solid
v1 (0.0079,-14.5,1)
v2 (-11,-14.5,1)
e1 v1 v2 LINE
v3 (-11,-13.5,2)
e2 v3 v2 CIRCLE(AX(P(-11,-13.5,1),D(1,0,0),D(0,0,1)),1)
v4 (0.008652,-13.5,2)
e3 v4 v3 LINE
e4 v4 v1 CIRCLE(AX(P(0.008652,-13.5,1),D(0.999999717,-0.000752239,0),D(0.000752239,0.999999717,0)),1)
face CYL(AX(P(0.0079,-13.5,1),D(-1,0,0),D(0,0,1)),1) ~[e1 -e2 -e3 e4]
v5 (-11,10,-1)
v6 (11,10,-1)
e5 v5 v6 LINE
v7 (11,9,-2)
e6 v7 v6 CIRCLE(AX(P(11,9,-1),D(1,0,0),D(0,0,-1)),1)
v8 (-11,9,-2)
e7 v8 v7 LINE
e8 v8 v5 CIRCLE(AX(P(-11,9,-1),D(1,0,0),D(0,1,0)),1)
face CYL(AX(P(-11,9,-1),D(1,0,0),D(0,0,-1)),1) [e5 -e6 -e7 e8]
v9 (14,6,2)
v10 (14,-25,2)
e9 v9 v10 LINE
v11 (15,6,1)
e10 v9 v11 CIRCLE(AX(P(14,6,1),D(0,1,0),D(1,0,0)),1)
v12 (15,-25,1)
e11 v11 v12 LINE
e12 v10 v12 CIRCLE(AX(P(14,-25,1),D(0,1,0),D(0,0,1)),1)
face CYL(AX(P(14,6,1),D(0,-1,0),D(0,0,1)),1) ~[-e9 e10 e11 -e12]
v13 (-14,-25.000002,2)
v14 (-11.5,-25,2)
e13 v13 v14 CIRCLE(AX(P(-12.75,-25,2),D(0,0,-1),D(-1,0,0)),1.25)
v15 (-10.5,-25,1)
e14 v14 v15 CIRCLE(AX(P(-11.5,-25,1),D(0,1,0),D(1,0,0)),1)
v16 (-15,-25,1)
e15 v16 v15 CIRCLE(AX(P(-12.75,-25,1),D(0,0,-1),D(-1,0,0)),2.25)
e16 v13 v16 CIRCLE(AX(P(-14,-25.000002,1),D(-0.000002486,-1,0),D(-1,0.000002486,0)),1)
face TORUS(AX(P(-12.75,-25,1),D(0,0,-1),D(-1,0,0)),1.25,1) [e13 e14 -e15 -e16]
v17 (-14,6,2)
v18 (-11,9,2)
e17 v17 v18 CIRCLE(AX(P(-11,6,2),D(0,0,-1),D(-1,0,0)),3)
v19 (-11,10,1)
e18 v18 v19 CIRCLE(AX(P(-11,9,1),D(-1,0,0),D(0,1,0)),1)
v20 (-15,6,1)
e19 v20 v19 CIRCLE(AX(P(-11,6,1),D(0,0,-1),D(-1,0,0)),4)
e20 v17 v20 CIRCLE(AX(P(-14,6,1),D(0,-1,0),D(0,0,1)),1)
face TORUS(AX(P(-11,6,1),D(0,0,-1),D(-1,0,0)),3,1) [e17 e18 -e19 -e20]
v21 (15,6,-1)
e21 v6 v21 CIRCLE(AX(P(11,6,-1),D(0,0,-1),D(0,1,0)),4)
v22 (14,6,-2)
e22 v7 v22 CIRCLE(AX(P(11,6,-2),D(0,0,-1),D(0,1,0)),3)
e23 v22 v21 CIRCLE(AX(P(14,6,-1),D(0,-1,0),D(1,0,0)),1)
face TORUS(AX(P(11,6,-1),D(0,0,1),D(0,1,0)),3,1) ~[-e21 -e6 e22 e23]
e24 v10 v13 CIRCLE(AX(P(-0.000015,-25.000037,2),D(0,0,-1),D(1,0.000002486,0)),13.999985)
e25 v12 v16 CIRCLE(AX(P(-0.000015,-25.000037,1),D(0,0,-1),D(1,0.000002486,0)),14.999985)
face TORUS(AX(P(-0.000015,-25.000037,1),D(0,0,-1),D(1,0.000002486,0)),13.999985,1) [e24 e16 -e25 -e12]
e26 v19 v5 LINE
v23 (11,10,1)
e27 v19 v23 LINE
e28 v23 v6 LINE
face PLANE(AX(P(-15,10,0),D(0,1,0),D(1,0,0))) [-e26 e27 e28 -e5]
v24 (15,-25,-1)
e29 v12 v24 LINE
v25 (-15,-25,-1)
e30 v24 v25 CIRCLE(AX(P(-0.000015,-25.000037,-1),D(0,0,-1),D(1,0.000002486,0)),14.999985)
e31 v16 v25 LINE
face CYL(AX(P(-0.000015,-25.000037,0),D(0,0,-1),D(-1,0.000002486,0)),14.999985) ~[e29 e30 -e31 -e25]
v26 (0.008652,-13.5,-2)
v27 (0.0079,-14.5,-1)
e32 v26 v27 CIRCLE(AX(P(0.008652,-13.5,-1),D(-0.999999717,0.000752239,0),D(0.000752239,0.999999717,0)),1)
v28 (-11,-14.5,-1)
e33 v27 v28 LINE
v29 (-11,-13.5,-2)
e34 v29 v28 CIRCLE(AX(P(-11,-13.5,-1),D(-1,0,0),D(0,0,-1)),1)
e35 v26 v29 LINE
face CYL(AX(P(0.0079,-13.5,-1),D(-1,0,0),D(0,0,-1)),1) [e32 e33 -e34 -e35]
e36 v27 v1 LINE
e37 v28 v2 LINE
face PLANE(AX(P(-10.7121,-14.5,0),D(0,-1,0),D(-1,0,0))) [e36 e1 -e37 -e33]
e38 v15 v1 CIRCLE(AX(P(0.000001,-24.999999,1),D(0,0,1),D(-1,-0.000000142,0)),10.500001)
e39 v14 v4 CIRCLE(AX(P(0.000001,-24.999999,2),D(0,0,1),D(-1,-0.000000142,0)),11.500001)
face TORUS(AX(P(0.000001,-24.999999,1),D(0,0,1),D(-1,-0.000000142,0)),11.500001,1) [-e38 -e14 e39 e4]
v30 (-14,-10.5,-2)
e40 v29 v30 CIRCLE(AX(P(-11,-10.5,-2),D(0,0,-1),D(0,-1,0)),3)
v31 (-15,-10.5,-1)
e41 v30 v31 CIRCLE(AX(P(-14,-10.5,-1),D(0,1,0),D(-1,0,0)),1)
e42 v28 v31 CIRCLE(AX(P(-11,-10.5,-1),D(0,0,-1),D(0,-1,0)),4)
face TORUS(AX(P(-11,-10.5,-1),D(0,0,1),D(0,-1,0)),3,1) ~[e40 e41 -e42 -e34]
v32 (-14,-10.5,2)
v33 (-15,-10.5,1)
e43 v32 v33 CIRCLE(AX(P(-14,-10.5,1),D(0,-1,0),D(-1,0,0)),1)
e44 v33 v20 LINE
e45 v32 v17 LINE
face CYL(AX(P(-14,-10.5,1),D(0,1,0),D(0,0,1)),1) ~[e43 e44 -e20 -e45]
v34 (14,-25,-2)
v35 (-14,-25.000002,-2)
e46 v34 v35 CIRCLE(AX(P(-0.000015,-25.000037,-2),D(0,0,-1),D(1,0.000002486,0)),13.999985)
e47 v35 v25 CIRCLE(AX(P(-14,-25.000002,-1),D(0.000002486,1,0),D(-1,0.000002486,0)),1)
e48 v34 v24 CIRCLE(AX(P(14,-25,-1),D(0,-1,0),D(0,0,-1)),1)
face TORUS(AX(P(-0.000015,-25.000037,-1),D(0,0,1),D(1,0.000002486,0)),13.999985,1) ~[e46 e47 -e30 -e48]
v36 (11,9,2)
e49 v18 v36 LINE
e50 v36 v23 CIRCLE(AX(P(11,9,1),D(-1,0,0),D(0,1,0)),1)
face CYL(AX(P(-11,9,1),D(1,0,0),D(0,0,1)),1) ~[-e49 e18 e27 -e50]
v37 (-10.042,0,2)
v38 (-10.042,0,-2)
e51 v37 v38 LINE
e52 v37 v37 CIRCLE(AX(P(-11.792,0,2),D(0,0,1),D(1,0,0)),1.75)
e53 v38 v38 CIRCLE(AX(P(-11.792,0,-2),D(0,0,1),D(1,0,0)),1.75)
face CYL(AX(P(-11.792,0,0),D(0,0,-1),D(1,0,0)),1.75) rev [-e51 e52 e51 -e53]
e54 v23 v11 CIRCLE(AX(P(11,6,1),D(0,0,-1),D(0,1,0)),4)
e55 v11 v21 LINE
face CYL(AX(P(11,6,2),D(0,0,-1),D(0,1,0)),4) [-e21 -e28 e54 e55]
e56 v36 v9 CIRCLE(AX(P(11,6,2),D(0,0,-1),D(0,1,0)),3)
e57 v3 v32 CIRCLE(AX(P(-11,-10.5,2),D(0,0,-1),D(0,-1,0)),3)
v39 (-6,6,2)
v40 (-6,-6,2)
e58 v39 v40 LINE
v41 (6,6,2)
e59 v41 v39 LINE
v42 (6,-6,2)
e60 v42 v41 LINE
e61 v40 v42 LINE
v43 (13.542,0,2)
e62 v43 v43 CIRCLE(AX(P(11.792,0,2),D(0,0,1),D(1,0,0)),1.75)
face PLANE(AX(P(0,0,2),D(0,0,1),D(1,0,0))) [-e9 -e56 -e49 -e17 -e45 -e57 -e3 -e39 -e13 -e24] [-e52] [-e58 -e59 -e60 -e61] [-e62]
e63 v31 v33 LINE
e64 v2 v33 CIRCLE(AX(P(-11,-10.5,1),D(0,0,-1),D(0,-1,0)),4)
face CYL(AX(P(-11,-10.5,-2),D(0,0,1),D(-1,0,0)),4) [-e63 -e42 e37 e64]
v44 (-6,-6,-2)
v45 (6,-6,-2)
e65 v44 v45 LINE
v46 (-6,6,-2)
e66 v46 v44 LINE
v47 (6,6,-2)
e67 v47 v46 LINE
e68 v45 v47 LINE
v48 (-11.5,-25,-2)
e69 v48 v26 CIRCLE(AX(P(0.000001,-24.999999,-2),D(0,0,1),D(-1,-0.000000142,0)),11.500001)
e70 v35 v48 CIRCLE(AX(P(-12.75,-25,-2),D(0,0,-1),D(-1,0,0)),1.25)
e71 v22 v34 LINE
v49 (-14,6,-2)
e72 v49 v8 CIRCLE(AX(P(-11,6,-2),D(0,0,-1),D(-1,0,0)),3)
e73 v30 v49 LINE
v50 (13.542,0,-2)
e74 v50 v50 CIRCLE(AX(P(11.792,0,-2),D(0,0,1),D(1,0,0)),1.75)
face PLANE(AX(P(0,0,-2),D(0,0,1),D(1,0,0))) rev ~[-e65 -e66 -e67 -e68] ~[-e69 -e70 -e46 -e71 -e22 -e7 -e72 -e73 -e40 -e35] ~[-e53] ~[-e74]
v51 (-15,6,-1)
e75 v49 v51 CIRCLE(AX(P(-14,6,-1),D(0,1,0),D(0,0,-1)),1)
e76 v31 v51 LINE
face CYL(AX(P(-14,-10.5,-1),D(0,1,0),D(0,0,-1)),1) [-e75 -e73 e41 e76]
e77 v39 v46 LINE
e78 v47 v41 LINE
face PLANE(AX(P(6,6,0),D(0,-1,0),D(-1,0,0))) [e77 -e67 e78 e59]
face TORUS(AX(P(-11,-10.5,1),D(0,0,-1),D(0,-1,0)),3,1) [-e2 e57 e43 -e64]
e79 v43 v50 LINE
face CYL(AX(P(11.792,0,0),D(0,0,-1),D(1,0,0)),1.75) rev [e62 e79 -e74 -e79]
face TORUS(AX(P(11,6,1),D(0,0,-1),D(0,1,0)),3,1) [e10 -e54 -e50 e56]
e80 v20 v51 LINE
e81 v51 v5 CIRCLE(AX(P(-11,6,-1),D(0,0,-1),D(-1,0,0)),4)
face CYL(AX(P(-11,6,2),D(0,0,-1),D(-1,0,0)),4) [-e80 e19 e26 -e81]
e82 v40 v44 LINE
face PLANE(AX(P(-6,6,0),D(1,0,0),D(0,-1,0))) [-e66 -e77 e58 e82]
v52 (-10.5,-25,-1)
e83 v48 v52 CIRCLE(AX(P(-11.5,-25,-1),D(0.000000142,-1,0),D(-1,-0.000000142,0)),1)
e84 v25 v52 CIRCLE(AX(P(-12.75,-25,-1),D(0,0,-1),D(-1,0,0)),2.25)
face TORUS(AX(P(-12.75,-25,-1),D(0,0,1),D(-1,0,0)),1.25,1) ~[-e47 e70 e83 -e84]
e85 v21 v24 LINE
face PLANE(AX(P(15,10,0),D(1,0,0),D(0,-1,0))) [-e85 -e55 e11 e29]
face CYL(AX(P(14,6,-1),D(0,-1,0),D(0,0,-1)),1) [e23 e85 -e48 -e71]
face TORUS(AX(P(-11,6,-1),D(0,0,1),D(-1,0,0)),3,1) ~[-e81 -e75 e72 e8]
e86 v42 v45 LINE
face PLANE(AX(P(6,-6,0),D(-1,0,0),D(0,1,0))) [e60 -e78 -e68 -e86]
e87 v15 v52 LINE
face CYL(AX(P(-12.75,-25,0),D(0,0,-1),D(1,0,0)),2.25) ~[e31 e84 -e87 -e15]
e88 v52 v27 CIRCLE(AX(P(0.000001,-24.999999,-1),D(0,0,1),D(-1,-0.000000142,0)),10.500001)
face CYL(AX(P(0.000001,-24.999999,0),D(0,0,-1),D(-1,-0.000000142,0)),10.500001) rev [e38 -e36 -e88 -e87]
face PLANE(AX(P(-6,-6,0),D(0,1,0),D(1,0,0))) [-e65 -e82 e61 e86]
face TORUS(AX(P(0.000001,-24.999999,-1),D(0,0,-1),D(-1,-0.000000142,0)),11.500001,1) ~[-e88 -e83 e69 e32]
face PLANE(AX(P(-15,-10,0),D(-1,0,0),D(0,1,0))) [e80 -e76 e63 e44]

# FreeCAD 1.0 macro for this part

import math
import FreeCAD as App
import Part
import Sketcher
from FreeCAD import Vector


def edges_at(feature, points):
    """Names of the edges that pass closest to the given points."""
    edges = feature.Shape.Edges
    near = lambda p: min(range(len(edges)), key=lambda i: edges[i].distToShape(Part.Vertex(*p))[0])
    return sorted({f"Edge{near(p) + 1}" for p in points})

doc = App.newDocument("Part")
params = doc.addObject("Spreadsheet::Sheet", "Params")
for row, (alias, value) in enumerate([
    ("sketch1_radius", "15 mm"),
    ("sketch1_diameter", "3.5 mm"),
    ("sketch1_width", "30 mm"),
    ("sketch1_width2", "12 mm"),
    ("sketch1_height", "35 mm"),
    ("pad1_length", "4 mm"),
    ("sketch2_radius", "15 mm"),
    ("sketch2_radius2", "10.5 mm"),
    ("sketch2_width", "10.72 mm"),
    ("pad2_length", "4 mm"),
    ("fillet_radius", "4 mm"),
    ("fillet2_radius", "4 mm"),
    ("fillet3_radius", "1 mm"),
], start=1):
    params.set(f"A{row}", alias)
    params.set(f"B{row}", "=" + value)
    params.setAlias(f"B{row}", alias)

body = doc.addObject("PartDesign::Body", "Body")

# Sketch on XY plane
sketch1 = body.newObject("Sketcher::SketchObject", "Sketch")
sketch1.AttachmentSupport = (doc.getObject("XY_Plane"), [""])
sketch1.MapMode = "FlatFace"
sketch1.addGeometry([
    Part.LineSegment(Vector(-15, 10, 0), Vector(-15, -14.5, 0)),  # 0
    Part.LineSegment(Vector(-15, -14.5, 0), Vector(-10.7121, -14.5, 0)),  # 1
    Part.ArcOfCircle(Part.Circle(Vector(0, -25, 0), Vector(0, 0, 1), 15), math.radians(0), math.radians(135.572882)),  # 2
    Part.LineSegment(Vector(15, -25, 0), Vector(15, 10, 0)),  # 3
    Part.LineSegment(Vector(15, 10, 0), Vector(-15, 10, 0)),  # 4
    Part.Circle(Vector(-11.792, 0, 0), Vector(0, 0, 1), 1.75),  # 5
    Part.LineSegment(Vector(-6, 6, 0), Vector(6, 6, 0)),  # 6
    Part.LineSegment(Vector(6, 6, 0), Vector(6, -6, 0)),  # 7
    Part.LineSegment(Vector(6, -6, 0), Vector(-6, -6, 0)),  # 8
    Part.LineSegment(Vector(-6, -6, 0), Vector(-6, 6, 0)),  # 9
    Part.Circle(Vector(11.792, 0, 0), Vector(0, 0, 1), 1.75),  # 10
], False)
sketch1.addConstraint([
    Sketcher.Constraint("Coincident", 0, 2, 1, 1),
    Sketcher.Constraint("Coincident", 1, 2, 2, 2),
    Sketcher.Constraint("Tangent", 2, 1, 3, 1),
    Sketcher.Constraint("Coincident", 3, 2, 4, 1),
    Sketcher.Constraint("Coincident", 4, 2, 0, 1),
    Sketcher.Constraint("Coincident", 6, 2, 7, 1),
    Sketcher.Constraint("Coincident", 7, 2, 8, 1),
    Sketcher.Constraint("Coincident", 8, 2, 9, 1),
    Sketcher.Constraint("Coincident", 9, 2, 6, 1),
    Sketcher.Constraint("Vertical", 0),
    Sketcher.Constraint("Horizontal", 1),
    Sketcher.Constraint("Vertical", 3),
    Sketcher.Constraint("Horizontal", 4),
    Sketcher.Constraint("Horizontal", 6),
    Sketcher.Constraint("Vertical", 7),
    Sketcher.Constraint("Horizontal", 8),
    Sketcher.Constraint("Vertical", 9),
    Sketcher.Constraint("Equal", 5, 10),
    Sketcher.Constraint("Symmetric", 5, 3, 10, 3, -1, 1),
    Sketcher.Constraint("Symmetric", 6, 2, 8, 2, -1, 1),
    Sketcher.Constraint("PointOnObject", 2, 3, -2),
    Sketcher.Constraint("PointOnObject", 5, 3, -1),
    Sketcher.Constraint("Equal", 8, 7),
    Sketcher.Constraint("Radius", 2, 15.0),
    Sketcher.Constraint("Diameter", 5, 3.5),
    Sketcher.Constraint("DistanceX", 4, 2, 4, 1, 30.0),
    Sketcher.Constraint("DistanceX", 6, 1, 6, 2, 12.0),
    Sketcher.Constraint("DistanceY", 3, 1, 3, 2, 35.0),
    Sketcher.Constraint("DistanceY", 0, 2, 0, 1, 24.5),
    Sketcher.Constraint("DistanceY", 2, 3, -1, 1, 25.0),
    Sketcher.Constraint("DistanceX", 5, 3, 1, 2, 1.08),
])
sketch1.setExpression("Constraints[23]", "Params.sketch1_radius")
sketch1.setExpression("Constraints[24]", "Params.sketch1_diameter")
sketch1.setExpression("Constraints[25]", "Params.sketch1_width")
sketch1.setExpression("Constraints[26]", "Params.sketch1_width2")
sketch1.setExpression("Constraints[27]", "Params.sketch1_height")
pad1 = body.newObject("PartDesign::Pad", "Pad")
pad1.Profile = sketch1
pad1.setExpression("Length", "Params.pad1_length")
pad1.Midplane = True

# Sketch on XY plane
sketch2 = body.newObject("Sketcher::SketchObject", "Sketch001")
sketch2.AttachmentSupport = (doc.getObject("XY_Plane"), [""])
sketch2.MapMode = "FlatFace"
sketch2.addGeometry([
    Part.ArcOfCircle(Part.Circle(Vector(0, -25, 0), Vector(0, 0, 1), 15), math.radians(180), math.radians(495.572882)),
    Part.LineSegment(Vector(-10.7121, -14.5, 0), Vector(0.0079, -14.5, 0)),
    Part.ArcOfCircle(Part.Circle(Vector(0, -25, 0), Vector(0, 0, 1), 10.5), math.radians(180), math.radians(449.956892)),
    Part.ArcOfCircle(Part.Circle(Vector(-12.75, -25, 0), Vector(0, 0, 1), 2.25), math.radians(0), math.radians(180)),
], False)
sketch2.addConstraint([
    Sketcher.Constraint("Coincident", 0, 2, 1, 1),
    Sketcher.Constraint("Coincident", 1, 2, 2, 2),
    Sketcher.Constraint("Tangent", 2, 1, 3, 1),
    Sketcher.Constraint("Tangent", 3, 2, 0, 1),
    Sketcher.Constraint("Horizontal", 1),
    Sketcher.Constraint("Coincident", 2, 3, 0, 3),
    Sketcher.Constraint("PointOnObject", 0, 3, -2),
    Sketcher.Constraint("Horizontal", 2, 3, 3, 3),
    Sketcher.Constraint("Radius", 0, 15.0),
    Sketcher.Constraint("Radius", 2, 10.5),
    Sketcher.Constraint("DistanceY", 0, 3, -1, 1, 25.0),
    Sketcher.Constraint("DistanceX", 1, 1, 1, 2, 10.72),
])
sketch2.setExpression("Constraints[8]", "Params.sketch2_radius")
sketch2.setExpression("Constraints[9]", "Params.sketch2_radius2")
sketch2.setExpression("Constraints[11]", "Params.sketch2_width")
pad2 = body.newObject("PartDesign::Pad", "Pad001")
pad2.Profile = sketch2
pad2.setExpression("Length", "Params.pad2_length")
pad2.Midplane = True
doc.recompute()

fillet = body.newObject("PartDesign::Fillet", "Fillet")
fillet.Base = (pad2, edges_at(pad2, [(-15, 10, 0), (15, 10, 0)]))
fillet.setExpression("Radius", "Params.fillet_radius")
doc.recompute()

fillet2 = body.newObject("PartDesign::Fillet", "Fillet001")
fillet2.Base = (fillet, edges_at(fillet, [(-15, -14.5, 0)]))
fillet2.setExpression("Radius", "Params.fillet2_radius")
doc.recompute()

fillet3 = body.newObject("PartDesign::Fillet", "Fillet002")
fillet3.Base = (fillet2, edges_at(fillet2, [
    (13.828, 8.828, 2),
    (0, 10, 2),
    (-13.828, 8.828, 2),
    (-15, -2.25, 2),
    (-13.828, -13.328, 2),
    (-5.504, -14.5, 2),
    (7.427, -32.422, 2),
    (-12.75, -22.75, 2),
    (0, -40, 2),
    (15, -9.5, 2),
    (7.427, -32.422, -2),
    (-5.504, -14.5, -2),
    (-13.828, -13.328, -2),
    (-15, -2.25, -2),
    (-13.828, 8.828, -2),
    (0, 10, -2),
    (13.828, 8.828, -2),
    (15, -9.5, -2),
    (0, -40, -2),
    (-12.75, -22.75, -2),
]))
fillet3.setExpression("Radius", "Params.fillet3_radius")

doc.recompute()
